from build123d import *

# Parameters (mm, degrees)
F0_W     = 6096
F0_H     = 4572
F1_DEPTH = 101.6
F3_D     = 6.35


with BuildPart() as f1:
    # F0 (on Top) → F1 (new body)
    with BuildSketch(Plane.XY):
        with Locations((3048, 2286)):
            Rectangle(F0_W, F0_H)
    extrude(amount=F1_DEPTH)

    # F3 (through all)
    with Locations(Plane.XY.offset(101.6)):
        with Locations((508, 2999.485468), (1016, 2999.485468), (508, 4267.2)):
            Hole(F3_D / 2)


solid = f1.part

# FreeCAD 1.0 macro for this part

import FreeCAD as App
import Part
import Sketcher
from FreeCAD import Vector
Q = App.Units.Quantity


def add_polygon(sketch, points):
    """Adds a closed chain of lines whose ends are joined by coincident constraints."""
    first, n = sketch.GeometryCount, len(points)
    for a, b in zip(points, points[1:] + points[:1]):
        sketch.addGeometry(Part.LineSegment(App.Vector(*a, 0), App.Vector(*b, 0)), False)
    for i in range(n):
        sketch.addConstraint(Sketcher.Constraint("Coincident", first + i, 2, first + (i + 1) % n, 1))

doc = App.newDocument("Part")
body = doc.addObject("PartDesign::Body", "Body")

sketch1 = body.newObject("Sketcher::SketchObject", "Sketch")
sketch1.AttachmentSupport = (doc.getObject("XY_Plane"), [""])
sketch1.MapMode = "FlatFace"
add_polygon(sketch1, [(0, 4572), (0, 0), (6096, 0), (6096, 4572)])
sketch1.addConstraint([
    Sketcher.Constraint("Vertical", 0),
    Sketcher.Constraint("Horizontal", 1),
    Sketcher.Constraint("Vertical", 2),
    Sketcher.Constraint("Horizontal", 3),
    Sketcher.Constraint("Coincident", 0, 2, -1, 1),
    Sketcher.Constraint("DistanceX", 1, 1, 1, 2, Q("240 in")),
    Sketcher.Constraint("DistanceY", 0, 2, 0, 1, Q("180 in")),
])
pad1 = body.newObject("PartDesign::Pad", "Pad")
pad1.Profile = sketch1
pad1.Length = Q("4 in")

sketch2 = body.newObject("Sketcher::SketchObject", "Sketch001")
sketch2.AttachmentSupport = (doc.getObject("XY_Plane"), [""])
sketch2.MapMode = "FlatFace"
sketch2.AttachmentOffset = App.Placement(Vector(0, 0, 4 * 25.4), App.Rotation())
sketch2.addGeometry([
    Part.Circle(Vector(508, 2999.5, 0), Vector(0, 0, 1), 3.2),
    Part.Circle(Vector(1016, 2999.5, 0), Vector(0, 0, 1), 3.2),
    Part.Circle(Vector(508, 4267.2, 0), Vector(0, 0, 1), 3.2),
], False)
sketch2.addConstraint([
    Sketcher.Constraint("Equal", 0, 1),
    Sketcher.Constraint("Equal", 1, 2),
    Sketcher.Constraint("Horizontal", 0, 3, 1, 3),
    Sketcher.Constraint("Vertical", 0, 3, 2, 3),
    Sketcher.Constraint("Diameter", 0, Q("0.25 in")),
    Sketcher.Constraint("DistanceX", -1, 1, 0, 3, Q("20 in")),
    Sketcher.Constraint("DistanceX", -1, 1, 1, 3, Q("40 in")),
    Sketcher.Constraint("DistanceY", -1, 1, 2, 3, Q("168 in")),
    Sketcher.Constraint("DistanceY", 0, 3, 2, 3, 1267.714532),
])
doc.recompute()
hole = body.newObject("PartDesign::Hole", "Hole")
hole.Profile = sketch2
hole.ThreadType = "None"
hole.Diameter = Q("0.25 in")
hole.DepthType = "ThroughAll"

doc.recompute()
